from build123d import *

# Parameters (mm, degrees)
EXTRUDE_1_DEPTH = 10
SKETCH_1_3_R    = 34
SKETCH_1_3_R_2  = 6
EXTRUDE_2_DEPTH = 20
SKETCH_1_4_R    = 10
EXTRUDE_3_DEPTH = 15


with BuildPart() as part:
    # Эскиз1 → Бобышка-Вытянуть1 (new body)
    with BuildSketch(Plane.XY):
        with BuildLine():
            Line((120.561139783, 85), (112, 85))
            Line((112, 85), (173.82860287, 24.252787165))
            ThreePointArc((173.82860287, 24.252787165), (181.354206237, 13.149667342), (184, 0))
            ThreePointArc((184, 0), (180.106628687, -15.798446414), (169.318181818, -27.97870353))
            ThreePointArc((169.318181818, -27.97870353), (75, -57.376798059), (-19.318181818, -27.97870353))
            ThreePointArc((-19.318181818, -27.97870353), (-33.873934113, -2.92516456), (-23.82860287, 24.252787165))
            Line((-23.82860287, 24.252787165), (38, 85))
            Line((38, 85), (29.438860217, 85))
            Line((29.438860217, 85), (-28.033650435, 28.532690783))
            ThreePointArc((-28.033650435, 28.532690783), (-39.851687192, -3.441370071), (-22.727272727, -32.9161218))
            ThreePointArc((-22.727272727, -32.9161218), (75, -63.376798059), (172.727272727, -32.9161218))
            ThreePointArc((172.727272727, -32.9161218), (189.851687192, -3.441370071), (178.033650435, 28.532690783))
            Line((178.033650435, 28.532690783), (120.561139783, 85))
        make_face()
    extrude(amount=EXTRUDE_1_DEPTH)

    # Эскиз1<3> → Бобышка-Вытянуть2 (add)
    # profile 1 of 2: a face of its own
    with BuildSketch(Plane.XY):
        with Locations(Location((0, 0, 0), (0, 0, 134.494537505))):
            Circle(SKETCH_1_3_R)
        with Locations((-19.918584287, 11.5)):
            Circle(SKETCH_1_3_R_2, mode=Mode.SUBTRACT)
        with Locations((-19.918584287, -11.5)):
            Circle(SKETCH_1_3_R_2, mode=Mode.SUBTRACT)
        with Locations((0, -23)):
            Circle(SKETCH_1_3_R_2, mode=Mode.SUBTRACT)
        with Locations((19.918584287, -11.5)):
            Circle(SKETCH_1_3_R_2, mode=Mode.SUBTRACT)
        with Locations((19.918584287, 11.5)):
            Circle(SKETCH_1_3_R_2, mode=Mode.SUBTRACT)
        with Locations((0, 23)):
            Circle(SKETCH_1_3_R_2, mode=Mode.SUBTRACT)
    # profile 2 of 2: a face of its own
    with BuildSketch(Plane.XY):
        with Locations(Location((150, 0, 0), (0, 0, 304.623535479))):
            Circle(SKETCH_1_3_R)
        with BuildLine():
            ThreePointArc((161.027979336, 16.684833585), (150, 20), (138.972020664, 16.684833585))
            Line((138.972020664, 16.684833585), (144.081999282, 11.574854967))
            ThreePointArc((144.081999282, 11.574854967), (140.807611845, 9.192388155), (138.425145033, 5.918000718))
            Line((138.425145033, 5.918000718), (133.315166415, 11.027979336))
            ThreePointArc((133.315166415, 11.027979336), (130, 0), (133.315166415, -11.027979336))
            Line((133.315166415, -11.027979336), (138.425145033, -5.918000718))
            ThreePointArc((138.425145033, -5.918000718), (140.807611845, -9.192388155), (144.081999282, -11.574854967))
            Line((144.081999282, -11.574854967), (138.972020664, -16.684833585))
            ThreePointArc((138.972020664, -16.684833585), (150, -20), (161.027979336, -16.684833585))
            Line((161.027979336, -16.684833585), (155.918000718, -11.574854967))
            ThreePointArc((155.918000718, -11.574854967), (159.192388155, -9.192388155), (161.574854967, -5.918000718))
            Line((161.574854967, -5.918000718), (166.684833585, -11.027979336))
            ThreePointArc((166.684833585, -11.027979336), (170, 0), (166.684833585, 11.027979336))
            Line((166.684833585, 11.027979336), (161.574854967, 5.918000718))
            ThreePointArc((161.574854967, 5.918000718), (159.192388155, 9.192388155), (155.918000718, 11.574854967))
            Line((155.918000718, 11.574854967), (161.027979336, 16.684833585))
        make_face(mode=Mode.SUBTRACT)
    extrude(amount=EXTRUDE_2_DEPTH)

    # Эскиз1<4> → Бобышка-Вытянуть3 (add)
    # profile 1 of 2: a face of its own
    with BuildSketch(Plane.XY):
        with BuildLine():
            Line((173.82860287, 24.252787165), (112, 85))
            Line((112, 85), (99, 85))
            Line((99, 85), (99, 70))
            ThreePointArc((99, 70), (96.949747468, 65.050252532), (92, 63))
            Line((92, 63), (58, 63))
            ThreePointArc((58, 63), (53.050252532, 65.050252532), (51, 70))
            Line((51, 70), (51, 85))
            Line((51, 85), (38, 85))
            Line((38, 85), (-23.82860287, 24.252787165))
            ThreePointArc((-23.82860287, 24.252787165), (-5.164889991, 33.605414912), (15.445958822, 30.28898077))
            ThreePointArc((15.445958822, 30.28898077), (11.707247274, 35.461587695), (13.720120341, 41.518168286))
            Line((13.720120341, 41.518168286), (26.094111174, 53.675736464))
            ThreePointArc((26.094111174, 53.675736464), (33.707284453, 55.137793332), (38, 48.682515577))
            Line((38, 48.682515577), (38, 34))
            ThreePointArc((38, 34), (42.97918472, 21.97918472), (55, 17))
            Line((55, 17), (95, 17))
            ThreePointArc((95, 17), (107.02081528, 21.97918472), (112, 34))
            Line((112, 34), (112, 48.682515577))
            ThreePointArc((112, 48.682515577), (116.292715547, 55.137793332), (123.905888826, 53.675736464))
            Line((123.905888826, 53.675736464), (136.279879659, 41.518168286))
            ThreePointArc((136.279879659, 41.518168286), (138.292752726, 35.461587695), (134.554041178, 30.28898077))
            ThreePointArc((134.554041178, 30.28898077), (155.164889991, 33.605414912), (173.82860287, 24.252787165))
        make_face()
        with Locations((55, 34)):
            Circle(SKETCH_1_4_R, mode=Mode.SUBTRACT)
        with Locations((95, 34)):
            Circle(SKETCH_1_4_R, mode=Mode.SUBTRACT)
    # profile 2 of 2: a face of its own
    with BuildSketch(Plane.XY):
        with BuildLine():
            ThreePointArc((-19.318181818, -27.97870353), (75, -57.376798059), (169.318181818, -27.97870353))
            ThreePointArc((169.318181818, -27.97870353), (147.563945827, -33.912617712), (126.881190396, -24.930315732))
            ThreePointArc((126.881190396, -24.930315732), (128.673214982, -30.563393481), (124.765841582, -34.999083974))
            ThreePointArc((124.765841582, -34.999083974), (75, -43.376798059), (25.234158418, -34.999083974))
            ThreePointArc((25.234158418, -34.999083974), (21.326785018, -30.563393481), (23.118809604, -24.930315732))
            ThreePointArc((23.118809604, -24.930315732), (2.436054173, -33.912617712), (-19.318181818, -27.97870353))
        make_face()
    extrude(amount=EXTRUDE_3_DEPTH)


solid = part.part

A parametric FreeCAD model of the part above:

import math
import FreeCAD as App
import Part
import Sketcher

doc = App.newDocument("Part")
body = doc.addObject("PartDesign::Body", "Body")

# Sketch on XY plane
sketch1 = body.newObject("Sketcher::SketchObject", "Sketch")
sketch1.AttachmentSupport = (doc.getObject("XY_Plane"), [""])
sketch1.MapMode = "FlatFace"
sketch1.addGeometry(Part.LineSegment(App.Vector(121, 85, 0), App.Vector(112, 85, 0)), False)
sketch1.addGeometry(Part.LineSegment(App.Vector(112, 85, 0), App.Vector(174, 24, 0)), False)
sketch1.addGeometry(Part.ArcOfCircle(Part.Circle(App.Vector(150, 0, 0), App.Vector(0, 0, 1), 34), math.radians(0), math.radians(46)), False)
sketch1.addGeometry(Part.ArcOfCircle(Part.Circle(App.Vector(150, 0, 0), App.Vector(0, 0, 1), 34), math.radians(-55), math.radians(0)), False)
sketch1.addGeometry(Part.ArcOfCircle(Part.Circle(App.Vector(75, 109, 0), App.Vector(0, 0, 1), 166), math.radians(-125), math.radians(-55)), False)
sketch1.addGeometry(Part.ArcOfCircle(Part.Circle(App.Vector(0, 0, 0), App.Vector(0, 0, 1), 34), math.radians(134), math.radians(235)), False)
sketch1.addGeometry(Part.LineSegment(App.Vector(-24, 24, 0), App.Vector(38, 85, 0)), False)
sketch1.addGeometry(Part.LineSegment(App.Vector(38, 85, 0), App.Vector(29, 85, 0)), False)
sketch1.addGeometry(Part.LineSegment(App.Vector(29, 85, 0), App.Vector(-28, 29, 0)), False)
sketch1.addGeometry(Part.ArcOfCircle(Part.Circle(App.Vector(0, 0, 0), App.Vector(0, 0, 1), 40), math.radians(134), math.radians(235)), False)
sketch1.addGeometry(Part.ArcOfCircle(Part.Circle(App.Vector(75, 109, 0), App.Vector(0, 0, 1), 172), math.radians(-125), math.radians(-55)), False)
sketch1.addGeometry(Part.ArcOfCircle(Part.Circle(App.Vector(150, 0, 0), App.Vector(0, 0, 1), 40), math.radians(-55), math.radians(46)), False)
sketch1.addGeometry(Part.LineSegment(App.Vector(178, 29, 0), App.Vector(121, 85, 0)), False)
sketch1.addConstraint(Sketcher.Constraint("Coincident", 0, 2, 1, 1))
sketch1.addConstraint(Sketcher.Constraint("Tangent", 1, 2, 2, 2))
sketch1.addConstraint(Sketcher.Constraint("Tangent", 2, 1, 3, 2))
sketch1.addConstraint(Sketcher.Constraint("Tangent", 3, 1, 4, 2))
sketch1.addConstraint(Sketcher.Constraint("Tangent", 4, 1, 5, 2))
sketch1.addConstraint(Sketcher.Constraint("Tangent", 5, 1, 6, 1))
sketch1.addConstraint(Sketcher.Constraint("Coincident", 6, 2, 7, 1))
sketch1.addConstraint(Sketcher.Constraint("Coincident", 7, 2, 8, 1))
sketch1.addConstraint(Sketcher.Constraint("Tangent", 8, 2, 9, 1))
sketch1.addConstraint(Sketcher.Constraint("Tangent", 9, 2, 10, 1))
sketch1.addConstraint(Sketcher.Constraint("Tangent", 10, 2, 11, 1))
sketch1.addConstraint(Sketcher.Constraint("Tangent", 11, 2, 12, 1))
sketch1.addConstraint(Sketcher.Constraint("Coincident", 12, 2, 0, 1))
sketch1.addConstraint(Sketcher.Constraint("Horizontal", 0))
sketch1.addConstraint(Sketcher.Constraint("Horizontal", 7))
sketch1.addConstraint(Sketcher.Constraint("Coincident", 5, 3, -1, 1))
sketch1.addConstraint(Sketcher.Constraint("Coincident", 9, 3, -1, 1))
sketch1.addConstraint(Sketcher.Constraint("Coincident", 10, 3, 4, 3))
sketch1.addConstraint(Sketcher.Constraint("Coincident", 11, 3, 2, 3))
sketch1.addConstraint(Sketcher.Constraint("Equal", 2, 3))
sketch1.addConstraint(Sketcher.Constraint("Equal", 3, 5))
sketch1.addConstraint(Sketcher.Constraint("PointOnObject", 2, 3, -1))
sketch1.addConstraint(Sketcher.Constraint("PointOnObject", 2, 1, -1))
sketch1.addConstraint(Sketcher.Constraint("Parallel", 6, 8))
sketch1.addConstraint(Sketcher.Constraint("Parallel", 1, 12))
sketch1.addConstraint(Sketcher.Constraint("Horizontal", 1, 2, 5, 1))
sketch1.addConstraint(Sketcher.Constraint("Horizontal", 0, 2, 6, 2))
sketch1.addConstraint(Sketcher.Constraint("Radius", 2, 34.0))
sketch1.addConstraint(Sketcher.Constraint("Radius", 4, 166.0))
sketch1.addConstraint(Sketcher.Constraint("Radius", 9, 40.0))
sketch1.addConstraint(Sketcher.Constraint("DistanceX", -1, 1, 2, 3, 150.0))
sketch1.addConstraint(Sketcher.Constraint("DistanceX", -1, 1, 0, 2, 112.0))
sketch1.addConstraint(Sketcher.Constraint("DistanceY", -1, 1, 0, 2, 85.0))
pad1 = body.newObject("PartDesign::Pad", "Pad")
pad1.Profile = sketch1
pad1.Length = 10

# Sketch on XY plane
sketch2 = body.newObject("Sketcher::SketchObject", "Sketch001")
sketch2.AttachmentSupport = (doc.getObject("XY_Plane"), [""])
sketch2.MapMode = "FlatFace"
sketch2.addGeometry(Part.Circle(App.Vector(0, 0, 0), App.Vector(0, 0, 1), 34), False)
sketch2.addGeometry(Part.Circle(App.Vector(20, 12, 0), App.Vector(0, 0, 1), 6), False)
sketch2.addGeometry(Part.Circle(App.Vector(20, -12, 0), App.Vector(0, 0, 1), 6), False)
sketch2.addGeometry(Part.Circle(App.Vector(0, 23, 0), App.Vector(0, 0, 1), 6), False)
sketch2.addGeometry(Part.Circle(App.Vector(0, -23, 0), App.Vector(0, 0, 1), 6), False)
sketch2.addGeometry(Part.Circle(App.Vector(-20, 12, 0), App.Vector(0, 0, 1), 6), False)
sketch2.addGeometry(Part.Circle(App.Vector(-20, -12, 0), App.Vector(0, 0, 1), 6), False)
sketch2.addGeometry(Part.Circle(App.Vector(150, 0, 0), App.Vector(0, 0, 1), 34), False)
sketch2.addGeometry(Part.ArcOfCircle(Part.Circle(App.Vector(150, 0, 0), App.Vector(0, 0, 1), 20), math.radians(57), math.radians(123)), False)
sketch2.addGeometry(Part.LineSegment(App.Vector(161, 17, 0), App.Vector(156, 12, 0)), False)
sketch2.addGeometry(Part.ArcOfCircle(Part.Circle(App.Vector(150, 0, 0), App.Vector(0, 0, 1), 13), math.radians(27), math.radians(63)), False)
sketch2.addGeometry(Part.LineSegment(App.Vector(162, 6, 0), App.Vector(167, 11, 0)), False)
sketch2.addGeometry(Part.ArcOfCircle(Part.Circle(App.Vector(150, 0, 0), App.Vector(0, 0, 1), 20), math.radians(-33), math.radians(33)), False)
sketch2.addGeometry(Part.LineSegment(App.Vector(167, -11, 0), App.Vector(162, -6, 0)), False)
sketch2.addGeometry(Part.ArcOfCircle(Part.Circle(App.Vector(150, 0, 0), App.Vector(0, 0, 1), 13), math.radians(-63), math.radians(-27)), False)
sketch2.addGeometry(Part.LineSegment(App.Vector(156, -12, 0), App.Vector(161, -17, 0)), False)
sketch2.addGeometry(Part.ArcOfCircle(Part.Circle(App.Vector(150, 0, 0), App.Vector(0, 0, 1), 20), math.radians(-123), math.radians(-57)), False)
sketch2.addGeometry(Part.LineSegment(App.Vector(139, -17, 0), App.Vector(144, -12, 0)), False)
sketch2.addGeometry(Part.ArcOfCircle(Part.Circle(App.Vector(150, 0, 0), App.Vector(0, 0, 1), 13), math.radians(-153), math.radians(-117)), False)
sketch2.addGeometry(Part.LineSegment(App.Vector(138, -6, 0), App.Vector(133, -11, 0)), False)
sketch2.addGeometry(Part.ArcOfCircle(Part.Circle(App.Vector(150, 0, 0), App.Vector(0, 0, 1), 20), math.radians(147), math.radians(213)), False)
sketch2.addGeometry(Part.LineSegment(App.Vector(133, 11, 0), App.Vector(138, 6, 0)), False)
sketch2.addGeometry(Part.ArcOfCircle(Part.Circle(App.Vector(150, 0, 0), App.Vector(0, 0, 1), 13), math.radians(117), math.radians(153)), False)
sketch2.addGeometry(Part.LineSegment(App.Vector(144, 12, 0), App.Vector(139, 17, 0)), False)
sketch2.addConstraint(Sketcher.Constraint("Coincident", 8, 1, 9, 1))
sketch2.addConstraint(Sketcher.Constraint("Coincident", 9, 2, 10, 2))
sketch2.addConstraint(Sketcher.Constraint("Coincident", 10, 1, 11, 1))
sketch2.addConstraint(Sketcher.Constraint("Coincident", 11, 2, 12, 2))
sketch2.addConstraint(Sketcher.Constraint("Coincident", 12, 1, 13, 1))
sketch2.addConstraint(Sketcher.Constraint("Coincident", 13, 2, 14, 2))
sketch2.addConstraint(Sketcher.Constraint("Coincident", 14, 1, 15, 1))
sketch2.addConstraint(Sketcher.Constraint("Coincident", 15, 2, 16, 2))
sketch2.addConstraint(Sketcher.Constraint("Coincident", 16, 1, 17, 1))
sketch2.addConstraint(Sketcher.Constraint("Coincident", 17, 2, 18, 2))
sketch2.addConstraint(Sketcher.Constraint("Coincident", 18, 1, 19, 1))
sketch2.addConstraint(Sketcher.Constraint("Coincident", 19, 2, 20, 2))
sketch2.addConstraint(Sketcher.Constraint("Coincident", 20, 1, 21, 1))
sketch2.addConstraint(Sketcher.Constraint("Coincident", 21, 2, 22, 2))
sketch2.addConstraint(Sketcher.Constraint("Coincident", 22, 1, 23, 1))
sketch2.addConstraint(Sketcher.Constraint("Coincident", 23, 2, 8, 2))
sketch2.addConstraint(Sketcher.Constraint("Coincident", 0, 3, -1, 1))
sketch2.addConstraint(Sketcher.Constraint("Coincident", 8, 3, 7, 3))
sketch2.addConstraint(Sketcher.Constraint("Coincident", 10, 3, 7, 3))
sketch2.addConstraint(Sketcher.Constraint("Coincident", 12, 3, 7, 3))
sketch2.addConstraint(Sketcher.Constraint("Coincident", 14, 3, 7, 3))
sketch2.addConstraint(Sketcher.Constraint("Coincident", 16, 3, 7, 3))
sketch2.addConstraint(Sketcher.Constraint("Coincident", 18, 3, 7, 3))
sketch2.addConstraint(Sketcher.Constraint("Coincident", 20, 3, 7, 3))
sketch2.addConstraint(Sketcher.Constraint("Coincident", 22, 3, 7, 3))
sketch2.addConstraint(Sketcher.Constraint("Equal", 1, 2))
sketch2.addConstraint(Sketcher.Constraint("Equal", 2, 3))
sketch2.addConstraint(Sketcher.Constraint("Equal", 3, 4))
sketch2.addConstraint(Sketcher.Constraint("Equal", 4, 5))
sketch2.addConstraint(Sketcher.Constraint("Equal", 5, 6))
sketch2.addConstraint(Sketcher.Constraint("Equal", 0, 7))
sketch2.addConstraint(Sketcher.Constraint("Equal", 8, 12))
sketch2.addConstraint(Sketcher.Constraint("Equal", 10, 14))
sketch2.addConstraint(Sketcher.Constraint("Equal", 12, 16))
sketch2.addConstraint(Sketcher.Constraint("Equal", 14, 18))
sketch2.addConstraint(Sketcher.Constraint("Equal", 16, 20))
sketch2.addConstraint(Sketcher.Constraint("Equal", 18, 22))
sketch2.addConstraint(Sketcher.Constraint("Symmetric", 3, 3, 4, 3, -1, 1))
sketch2.addConstraint(Sketcher.Constraint("Symmetric", 2, 3, 5, 3, -1, 1))
sketch2.addConstraint(Sketcher.Constraint("Symmetric", 1, 3, 6, 3, -1, 1))
sketch2.addConstraint(Sketcher.Constraint("Symmetric", 1, 3, 5, 3, -2))
sketch2.addConstraint(Sketcher.Constraint("Symmetric", 11, 2, 12, 1, -1))
sketch2.addConstraint(Sketcher.Constraint("PointOnObject", 3, 3, -2))
sketch2.addConstraint(Sketcher.Constraint("Parallel", 9, 11))
sketch2.addConstraint(Sketcher.Constraint("Perpendicular", 11, 13))
sketch2.addConstraint(Sketcher.Constraint("Parallel", 13, 15))
sketch2.addConstraint(Sketcher.Constraint("Perpendicular", 15, 17))
sketch2.addConstraint(Sketcher.Constraint("Parallel", 17, 19))
sketch2.addConstraint(Sketcher.Constraint("Perpendicular", 19, 21))
sketch2.addConstraint(Sketcher.Constraint("Parallel", 21, 23))
sketch2.addConstraint(Sketcher.Constraint("Horizontal", 15, 2, 16, 1))
sketch2.addConstraint(Sketcher.Constraint("Horizontal", 14, 1, 17, 2))
sketch2.addConstraint(Sketcher.Constraint("Horizontal", 13, 2, 18, 1))
sketch2.addConstraint(Sketcher.Constraint("Horizontal", 11, 2, 20, 1))
sketch2.addConstraint(Sketcher.Constraint("Horizontal", 9, 2, 22, 1))
sketch2.addConstraint(Sketcher.Constraint("Vertical", 9, 2, 14, 1))
sketch2.addConstraint(Sketcher.Constraint("Equal", 9, 11))
sketch2.addConstraint(Sketcher.Constraint("Diameter", 0, 68.0))
sketch2.addConstraint(Sketcher.Constraint("Diameter", 1, 12.0))
sketch2.addConstraint(Sketcher.Constraint("Radius", 8, 20.0))
sketch2.addConstraint(Sketcher.Constraint("Radius", 10, 13.0))
sketch2.addConstraint(Sketcher.Constraint("DistanceY", -1, 1, 3, 3, 23.0))
sketch2.addConstraint(Sketcher.Constraint("DistanceX", -1, 1, 7, 3, 150.0))
sketch2.addConstraint(Sketcher.Constraint("DistanceY", 2, 3, 1, 3, 23.0))
sketch2.addConstraint(Sketcher.Constraint("DistanceX", -1, 1, 9, 2, 155.918001))
sketch2.addConstraint(Sketcher.Constraint("DistanceX", 5, 3, 1, 3, 39.837169))
pad2 = body.newObject("PartDesign::Pad", "Pad001")
pad2.Profile = sketch2
pad2.Length = 20

# Sketch on XY plane
sketch3 = body.newObject("Sketcher::SketchObject", "Sketch002")
sketch3.AttachmentSupport = (doc.getObject("XY_Plane"), [""])
sketch3.MapMode = "FlatFace"
sketch3.addGeometry(Part.LineSegment(App.Vector(174, 24, 0), App.Vector(112, 85, 0)), False)
sketch3.addGeometry(Part.LineSegment(App.Vector(112, 85, 0), App.Vector(99, 85, 0)), False)
sketch3.addGeometry(Part.LineSegment(App.Vector(99, 85, 0), App.Vector(99, 70, 0)), False)
sketch3.addGeometry(Part.ArcOfCircle(Part.Circle(App.Vector(92, 70, 0), App.Vector(0, 0, 1), 7), math.radians(-90), math.radians(0)), False)
sketch3.addGeometry(Part.LineSegment(App.Vector(92, 63, 0), App.Vector(58, 63, 0)), False)
sketch3.addGeometry(Part.ArcOfCircle(Part.Circle(App.Vector(58, 70, 0), App.Vector(0, 0, 1), 7), math.radians(-180), math.radians(-90)), False)
sketch3.addGeometry(Part.LineSegment(App.Vector(51, 70, 0), App.Vector(51, 85, 0)), False)
sketch3.addGeometry(Part.LineSegment(App.Vector(51, 85, 0), App.Vector(38, 85, 0)), False)
sketch3.addGeometry(Part.LineSegment(App.Vector(38, 85, 0), App.Vector(-24, 24, 0)), False)
sketch3.addGeometry(Part.ArcOfCircle(Part.Circle(App.Vector(0, 0, 0), App.Vector(0, 0, 1), 34), math.radians(63), math.radians(134)), False)
sketch3.addGeometry(Part.ArcOfCircle(Part.Circle(App.Vector(19, 37, 0), App.Vector(0, 0, 1), 7), math.radians(134), math.radians(243)), False)
sketch3.addGeometry(Part.LineSegment(App.Vector(14, 42, 0), App.Vector(26, 54, 0)), False)
sketch3.addGeometry(Part.ArcOfCircle(Part.Circle(App.Vector(31, 49, 0), App.Vector(0, 0, 1), 7), math.radians(0), math.radians(134)), False)
sketch3.addGeometry(Part.LineSegment(App.Vector(38, 49, 0), App.Vector(38, 34, 0)), False)
sketch3.addGeometry(Part.ArcOfCircle(Part.Circle(App.Vector(55, 34, 0), App.Vector(0, 0, 1), 17), math.radians(-180), math.radians(-90)), False)
sketch3.addGeometry(Part.LineSegment(App.Vector(55, 17, 0), App.Vector(95, 17, 0)), False)
sketch3.addGeometry(Part.ArcOfCircle(Part.Circle(App.Vector(95, 34, 0), App.Vector(0, 0, 1), 17), math.radians(-90), math.radians(0)), False)
sketch3.addGeometry(Part.LineSegment(App.Vector(112, 34, 0), App.Vector(112, 49, 0)), False)
sketch3.addGeometry(Part.ArcOfCircle(Part.Circle(App.Vector(119, 49, 0), App.Vector(0, 0, 1), 7), math.radians(46), math.radians(180)), False)
sketch3.addGeometry(Part.LineSegment(App.Vector(124, 54, 0), App.Vector(136, 42, 0)), False)
sketch3.addGeometry(Part.ArcOfCircle(Part.Circle(App.Vector(131, 37, 0), App.Vector(0, 0, 1), 7), math.radians(-63), math.radians(46)), False)
sketch3.addGeometry(Part.ArcOfCircle(Part.Circle(App.Vector(150, 0, 0), App.Vector(0, 0, 1), 34), math.radians(46), math.radians(117)), False)
sketch3.addGeometry(Part.Circle(App.Vector(55, 34, 0), App.Vector(0, 0, 1), 10), False)
sketch3.addGeometry(Part.Circle(App.Vector(95, 34, 0), App.Vector(0, 0, 1), 10), False)
sketch3.addGeometry(Part.ArcOfCircle(Part.Circle(App.Vector(75, 109, 0), App.Vector(0, 0, 1), 166), math.radians(-125), math.radians(-55)), False)
sketch3.addGeometry(Part.ArcOfCircle(Part.Circle(App.Vector(150, 0, 0), App.Vector(0, 0, 1), 34), math.radians(-133), math.radians(-55)), False)
sketch3.addGeometry(Part.ArcOfCircle(Part.Circle(App.Vector(123, -29, 0), App.Vector(0, 0, 1), 6), math.radians(-71), math.radians(47)), False)
sketch3.addGeometry(Part.ArcOfCircle(Part.Circle(App.Vector(75, 109, 0), App.Vector(0, 0, 1), 152), math.radians(-109), math.radians(-71)), False)
sketch3.addGeometry(Part.ArcOfCircle(Part.Circle(App.Vector(27, -29, 0), App.Vector(0, 0, 1), 6), math.radians(133), math.radians(251)), False)
sketch3.addGeometry(Part.ArcOfCircle(Part.Circle(App.Vector(0, 0, 0), App.Vector(0, 0, 1), 34), math.radians(-125), math.radians(-47)), False)
sketch3.addConstraint(Sketcher.Constraint("Coincident", 0, 2, 1, 1))
sketch3.addConstraint(Sketcher.Constraint("Coincident", 1, 2, 2, 1))
sketch3.addConstraint(Sketcher.Constraint("Tangent", 2, 2, 3, 2))
sketch3.addConstraint(Sketcher.Constraint("Tangent", 3, 1, 4, 1))
sketch3.addConstraint(Sketcher.Constraint("Tangent", 4, 2, 5, 2))
sketch3.addConstraint(Sketcher.Constraint("Tangent", 5, 1, 6, 1))
sketch3.addConstraint(Sketcher.Constraint("Coincident", 6, 2, 7, 1))
sketch3.addConstraint(Sketcher.Constraint("Coincident", 7, 2, 8, 1))
sketch3.addConstraint(Sketcher.Constraint("Tangent", 8, 2, 9, 2))
sketch3.addConstraint(Sketcher.Constraint("Tangent", 9, 1, 10, 2))
sketch3.addConstraint(Sketcher.Constraint("Tangent", 10, 1, 11, 1))
sketch3.addConstraint(Sketcher.Constraint("Tangent", 11, 2, 12, 2))
sketch3.addConstraint(Sketcher.Constraint("Tangent", 12, 1, 13, 1))
sketch3.addConstraint(Sketcher.Constraint("Tangent", 13, 2, 14, 1))
sketch3.addConstraint(Sketcher.Constraint("Tangent", 14, 2, 15, 1))
sketch3.addConstraint(Sketcher.Constraint("Tangent", 15, 2, 16, 1))
sketch3.addConstraint(Sketcher.Constraint("Tangent", 16, 2, 17, 1))
sketch3.addConstraint(Sketcher.Constraint("Tangent", 17, 2, 18, 2))
sketch3.addConstraint(Sketcher.Constraint("Tangent", 18, 1, 19, 1))
sketch3.addConstraint(Sketcher.Constraint("Tangent", 19, 2, 20, 2))
sketch3.addConstraint(Sketcher.Constraint("Tangent", 20, 1, 21, 2))
sketch3.addConstraint(Sketcher.Constraint("Tangent", 21, 1, 0, 1))
sketch3.addConstraint(Sketcher.Constraint("Tangent", 24, 2, 25, 2))
sketch3.addConstraint(Sketcher.Constraint("Tangent", 25, 1, 26, 2))
sketch3.addConstraint(Sketcher.Constraint("Tangent", 26, 1, 27, 2))
sketch3.addConstraint(Sketcher.Constraint("Tangent", 27, 1, 28, 2))
sketch3.addConstraint(Sketcher.Constraint("Tangent", 28, 1, 29, 2))
sketch3.addConstraint(Sketcher.Constraint("Tangent", 29, 1, 24, 1))
sketch3.addConstraint(Sketcher.Constraint("Horizontal", 1))
sketch3.addConstraint(Sketcher.Constraint("Vertical", 2))
sketch3.addConstraint(Sketcher.Constraint("Horizontal", 4))
sketch3.addConstraint(Sketcher.Constraint("Vertical", 6))
sketch3.addConstraint(Sketcher.Constraint("Horizontal", 7))
sketch3.addConstraint(Sketcher.Constraint("Vertical", 13))
sketch3.addConstraint(Sketcher.Constraint("Horizontal", 15))
sketch3.addConstraint(Sketcher.Constraint("Vertical", 17))
sketch3.addConstraint(Sketcher.Constraint("Coincident", 9, 3, -1, 1))
sketch3.addConstraint(Sketcher.Constraint("Coincident", 29, 3, -1, 1))
sketch3.addConstraint(Sketcher.Constraint("Coincident", 22, 3, 14, 3))
sketch3.addConstraint(Sketcher.Constraint("Coincident", 23, 3, 16, 3))
sketch3.addConstraint(Sketcher.Constraint("Coincident", 25, 3, 21, 3))
sketch3.addConstraint(Sketcher.Constraint("Coincident", 27, 3, 24, 3))
sketch3.addConstraint(Sketcher.Constraint("Equal", 3, 5))
sketch3.addConstraint(Sketcher.Constraint("Equal", 5, 10))
sketch3.addConstraint(Sketcher.Constraint("Equal", 10, 12))
sketch3.addConstraint(Sketcher.Constraint("Equal", 14, 16))
sketch3.addConstraint(Sketcher.Constraint("Equal", 12, 18))
sketch3.addConstraint(Sketcher.Constraint("Equal", 18, 20))
sketch3.addConstraint(Sketcher.Constraint("Equal", 9, 21))
sketch3.addConstraint(Sketcher.Constraint("Equal", 22, 23))
sketch3.addConstraint(Sketcher.Constraint("Equal", 21, 25))
sketch3.addConstraint(Sketcher.Constraint("Equal", 26, 28))
sketch3.addConstraint(Sketcher.Constraint("Equal", 25, 29))
sketch3.addConstraint(Sketcher.Constraint("PointOnObject", 21, 3, -1))
sketch3.addConstraint(Sketcher.Constraint("Parallel", 8, 11))
sketch3.addConstraint(Sketcher.Constraint("Parallel", 0, 19))
sketch3.addConstraint(Sketcher.Constraint("Horizontal", 12, 3, 18, 3))
sketch3.addConstraint(Sketcher.Constraint("Horizontal", 10, 3, 20, 3))
sketch3.addConstraint(Sketcher.Constraint("Horizontal", 1, 2, 6, 2))
sketch3.addConstraint(Sketcher.Constraint("Horizontal", 11, 2, 18, 1))
sketch3.addConstraint(Sketcher.Constraint("Vertical", 7, 2, 12, 1))
sketch3.addConstraint(Sketcher.Constraint("Equal", 1, 7))
sketch3.addConstraint(Sketcher.Constraint("Diameter", 22, 20.0))
sketch3.addConstraint(Sketcher.Constraint("Radius", 3, 7.0))
sketch3.addConstraint(Sketcher.Constraint("Radius", 9, 34.0))
sketch3.addConstraint(Sketcher.Constraint("Radius", 14, 17.0))
sketch3.addConstraint(Sketcher.Constraint("Radius", 24, 166.0))
sketch3.addConstraint(Sketcher.Constraint("Radius", 26, 6.0))
sketch3.addConstraint(Sketcher.Constraint("Radius", 27, 152.0))
sketch3.addConstraint(Sketcher.Constraint("DistanceX", 1, 2, 1, 1, 13.0))
sketch3.addConstraint(Sketcher.Constraint("DistanceX", 4, 2, 4, 1, 34.0))
sketch3.addConstraint(Sketcher.Constraint("DistanceY", 2, 2, 2, 1, 15.0))
sketch3.addConstraint(Sketcher.Constraint("DistanceX", -1, 1, 3, 3, 92.0))
sketch3.addConstraint(Sketcher.Constraint("DistanceY", -1, 1, 3, 3, 70.0))
sketch3.addConstraint(Sketcher.Constraint("DistanceY", -1, 1, 14, 3, 34.0))
sketch3.addConstraint(Sketcher.Constraint("DistanceY", 28, 3, 12, 3, 78.012299))
pad3 = body.newObject("PartDesign::Pad", "Pad002")
pad3.Profile = sketch3
pad3.Length = 15

doc.recompute()
